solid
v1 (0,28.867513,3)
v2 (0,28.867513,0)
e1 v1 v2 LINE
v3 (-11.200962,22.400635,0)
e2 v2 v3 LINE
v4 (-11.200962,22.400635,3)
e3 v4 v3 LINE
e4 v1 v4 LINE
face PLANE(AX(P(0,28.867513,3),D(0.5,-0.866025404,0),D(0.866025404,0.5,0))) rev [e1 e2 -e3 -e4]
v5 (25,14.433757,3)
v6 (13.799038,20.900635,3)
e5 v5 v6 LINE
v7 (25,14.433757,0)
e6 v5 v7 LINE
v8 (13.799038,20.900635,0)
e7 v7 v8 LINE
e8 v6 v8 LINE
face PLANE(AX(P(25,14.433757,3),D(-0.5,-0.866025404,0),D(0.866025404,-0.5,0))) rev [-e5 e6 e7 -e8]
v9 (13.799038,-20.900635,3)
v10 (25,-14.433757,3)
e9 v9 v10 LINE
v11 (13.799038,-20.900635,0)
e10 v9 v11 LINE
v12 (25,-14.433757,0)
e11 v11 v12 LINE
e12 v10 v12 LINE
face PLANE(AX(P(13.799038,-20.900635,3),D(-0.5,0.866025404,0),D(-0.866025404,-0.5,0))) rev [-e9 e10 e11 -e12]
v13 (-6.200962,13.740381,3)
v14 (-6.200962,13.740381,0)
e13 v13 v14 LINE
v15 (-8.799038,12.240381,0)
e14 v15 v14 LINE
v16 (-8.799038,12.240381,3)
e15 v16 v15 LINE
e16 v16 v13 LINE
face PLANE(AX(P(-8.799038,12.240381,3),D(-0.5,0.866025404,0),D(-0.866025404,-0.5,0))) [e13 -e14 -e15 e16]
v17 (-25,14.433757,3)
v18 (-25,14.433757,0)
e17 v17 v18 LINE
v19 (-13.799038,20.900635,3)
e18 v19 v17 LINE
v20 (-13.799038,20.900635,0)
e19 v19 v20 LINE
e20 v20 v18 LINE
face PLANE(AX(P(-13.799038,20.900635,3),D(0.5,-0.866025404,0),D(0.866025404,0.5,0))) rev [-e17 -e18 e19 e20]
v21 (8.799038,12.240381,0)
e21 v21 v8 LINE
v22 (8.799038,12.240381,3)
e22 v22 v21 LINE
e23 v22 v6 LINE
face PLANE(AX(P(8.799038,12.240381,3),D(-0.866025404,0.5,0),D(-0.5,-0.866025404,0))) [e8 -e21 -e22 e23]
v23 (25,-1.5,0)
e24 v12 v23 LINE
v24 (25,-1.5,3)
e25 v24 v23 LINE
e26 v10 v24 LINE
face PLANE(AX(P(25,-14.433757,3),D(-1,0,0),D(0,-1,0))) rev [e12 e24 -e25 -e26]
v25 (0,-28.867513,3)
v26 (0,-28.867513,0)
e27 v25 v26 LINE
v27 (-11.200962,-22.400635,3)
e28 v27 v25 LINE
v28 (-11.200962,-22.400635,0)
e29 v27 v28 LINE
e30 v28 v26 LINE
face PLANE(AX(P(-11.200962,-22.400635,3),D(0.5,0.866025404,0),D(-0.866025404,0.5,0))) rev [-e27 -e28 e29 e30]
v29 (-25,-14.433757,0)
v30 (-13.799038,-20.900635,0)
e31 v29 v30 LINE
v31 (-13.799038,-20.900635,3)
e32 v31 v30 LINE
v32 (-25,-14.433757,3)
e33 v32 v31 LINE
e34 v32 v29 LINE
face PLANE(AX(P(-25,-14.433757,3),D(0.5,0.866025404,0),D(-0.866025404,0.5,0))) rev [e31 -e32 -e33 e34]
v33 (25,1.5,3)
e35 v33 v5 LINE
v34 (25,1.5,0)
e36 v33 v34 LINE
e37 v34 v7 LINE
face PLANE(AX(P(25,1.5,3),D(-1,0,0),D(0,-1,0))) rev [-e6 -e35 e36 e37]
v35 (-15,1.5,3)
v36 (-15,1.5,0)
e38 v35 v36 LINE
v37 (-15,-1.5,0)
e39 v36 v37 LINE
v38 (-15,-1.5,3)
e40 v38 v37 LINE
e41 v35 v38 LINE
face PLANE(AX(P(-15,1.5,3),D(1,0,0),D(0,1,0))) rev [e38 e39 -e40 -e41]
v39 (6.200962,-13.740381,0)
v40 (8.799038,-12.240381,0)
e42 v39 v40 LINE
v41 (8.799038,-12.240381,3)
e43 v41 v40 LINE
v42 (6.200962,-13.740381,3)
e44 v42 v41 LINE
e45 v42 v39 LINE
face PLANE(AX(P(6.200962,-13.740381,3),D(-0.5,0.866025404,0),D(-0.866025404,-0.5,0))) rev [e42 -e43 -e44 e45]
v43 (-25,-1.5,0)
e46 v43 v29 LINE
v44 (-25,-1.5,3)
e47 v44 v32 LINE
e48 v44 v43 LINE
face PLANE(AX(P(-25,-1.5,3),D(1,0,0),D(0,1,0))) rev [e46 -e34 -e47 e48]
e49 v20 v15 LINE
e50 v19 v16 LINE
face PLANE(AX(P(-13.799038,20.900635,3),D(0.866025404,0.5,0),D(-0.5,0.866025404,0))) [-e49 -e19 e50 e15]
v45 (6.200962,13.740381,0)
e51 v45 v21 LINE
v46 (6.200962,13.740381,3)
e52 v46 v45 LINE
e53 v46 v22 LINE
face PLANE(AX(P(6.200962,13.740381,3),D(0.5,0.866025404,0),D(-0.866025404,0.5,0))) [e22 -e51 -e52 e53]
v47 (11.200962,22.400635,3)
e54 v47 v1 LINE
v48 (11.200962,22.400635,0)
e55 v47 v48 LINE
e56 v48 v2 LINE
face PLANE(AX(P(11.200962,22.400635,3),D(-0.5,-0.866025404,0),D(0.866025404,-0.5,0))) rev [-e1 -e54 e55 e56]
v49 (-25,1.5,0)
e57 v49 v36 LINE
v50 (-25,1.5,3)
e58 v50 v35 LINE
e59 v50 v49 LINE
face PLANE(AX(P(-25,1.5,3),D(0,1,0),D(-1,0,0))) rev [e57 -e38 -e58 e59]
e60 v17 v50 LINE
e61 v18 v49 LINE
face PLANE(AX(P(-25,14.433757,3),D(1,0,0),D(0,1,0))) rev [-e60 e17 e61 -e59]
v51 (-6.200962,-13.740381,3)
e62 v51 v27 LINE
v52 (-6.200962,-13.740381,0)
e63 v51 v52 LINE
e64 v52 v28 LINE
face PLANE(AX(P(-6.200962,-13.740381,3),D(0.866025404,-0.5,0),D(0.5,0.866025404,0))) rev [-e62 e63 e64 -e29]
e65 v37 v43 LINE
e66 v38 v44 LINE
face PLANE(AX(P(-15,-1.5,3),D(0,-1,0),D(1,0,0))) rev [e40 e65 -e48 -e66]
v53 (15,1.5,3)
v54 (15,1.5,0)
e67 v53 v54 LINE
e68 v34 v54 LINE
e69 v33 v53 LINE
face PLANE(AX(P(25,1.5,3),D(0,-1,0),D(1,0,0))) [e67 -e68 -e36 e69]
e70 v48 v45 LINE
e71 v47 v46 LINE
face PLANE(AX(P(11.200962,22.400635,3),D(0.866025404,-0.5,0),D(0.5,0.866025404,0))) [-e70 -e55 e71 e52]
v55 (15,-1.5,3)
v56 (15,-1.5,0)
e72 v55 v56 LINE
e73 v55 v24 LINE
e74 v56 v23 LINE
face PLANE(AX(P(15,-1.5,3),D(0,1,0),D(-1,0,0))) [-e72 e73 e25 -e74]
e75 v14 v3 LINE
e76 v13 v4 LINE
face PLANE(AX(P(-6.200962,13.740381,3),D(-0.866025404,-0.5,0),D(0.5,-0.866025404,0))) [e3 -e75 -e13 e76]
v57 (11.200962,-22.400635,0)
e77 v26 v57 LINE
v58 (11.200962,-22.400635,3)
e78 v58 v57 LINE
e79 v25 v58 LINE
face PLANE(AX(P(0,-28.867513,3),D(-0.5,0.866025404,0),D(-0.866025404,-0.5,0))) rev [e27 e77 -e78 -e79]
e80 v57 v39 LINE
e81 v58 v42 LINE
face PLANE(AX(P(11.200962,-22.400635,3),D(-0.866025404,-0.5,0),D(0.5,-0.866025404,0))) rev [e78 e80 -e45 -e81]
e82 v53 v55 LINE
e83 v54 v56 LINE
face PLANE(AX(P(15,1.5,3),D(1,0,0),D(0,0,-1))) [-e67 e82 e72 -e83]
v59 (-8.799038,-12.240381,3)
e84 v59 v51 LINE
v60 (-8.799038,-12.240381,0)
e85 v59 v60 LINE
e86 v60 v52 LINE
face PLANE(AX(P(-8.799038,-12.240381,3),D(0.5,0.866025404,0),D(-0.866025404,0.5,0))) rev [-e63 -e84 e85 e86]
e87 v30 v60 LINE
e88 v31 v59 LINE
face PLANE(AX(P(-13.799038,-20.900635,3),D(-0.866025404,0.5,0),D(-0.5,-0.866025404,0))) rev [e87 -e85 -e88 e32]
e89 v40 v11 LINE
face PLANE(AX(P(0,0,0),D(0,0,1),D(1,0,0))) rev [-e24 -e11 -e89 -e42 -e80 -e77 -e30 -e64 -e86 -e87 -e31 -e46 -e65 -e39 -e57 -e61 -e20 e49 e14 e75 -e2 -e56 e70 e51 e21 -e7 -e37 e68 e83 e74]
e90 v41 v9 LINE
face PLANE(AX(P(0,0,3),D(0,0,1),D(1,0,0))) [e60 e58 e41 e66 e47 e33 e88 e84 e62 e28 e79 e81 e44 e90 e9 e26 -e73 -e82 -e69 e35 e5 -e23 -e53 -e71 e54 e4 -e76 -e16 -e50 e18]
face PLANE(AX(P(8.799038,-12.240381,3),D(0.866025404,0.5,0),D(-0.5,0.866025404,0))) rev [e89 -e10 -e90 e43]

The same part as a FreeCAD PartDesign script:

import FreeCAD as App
import Part
import Sketcher
from FreeCAD import Vector
Q = App.Units.Quantity

doc = App.newDocument("Part")
params = doc.addObject("Spreadsheet::Sheet", "Params")
for row, (alias, value) in enumerate([
    ("sketch1_width", "10 mm"),
    ("sketch1_height", "3 mm"),
    ("sketch1_length", "10 mm"),
    ("sketch1_length2", "3 mm"),
    ("pad1_length", "3 mm"),
], start=1):
    params.set(f"A{row}", alias)
    params.set(f"B{row}", "=" + value)
    params.setAlias(f"B{row}", alias)

body = doc.addObject("PartDesign::Body", "Body")

# Sketch on XY plane
sketch1 = body.newObject("Sketcher::SketchObject", "Sketch")
sketch1.AttachmentSupport = (doc.getObject("XY_Plane"), [""])
sketch1.MapMode = "FlatFace"
sketch1.addGeometry([
    Part.LineSegment(Vector(-8.8, 12.2, 0), Vector(-13.8, 20.9, 0)),  # 0
    Part.LineSegment(Vector(-13.8, 20.9, 0), Vector(-25, 14.4, 0)),  # 1
    Part.LineSegment(Vector(-25, 14.4, 0), Vector(-25, 1.5, 0)),  # 2
    Part.LineSegment(Vector(-25, 1.5, 0), Vector(-15, 1.5, 0)),  # 3
    Part.LineSegment(Vector(-15, 1.5, 0), Vector(-15, -1.5, 0)),  # 4
    Part.LineSegment(Vector(-15, -1.5, 0), Vector(-25, -1.5, 0)),  # 5
    Part.LineSegment(Vector(-25, -1.5, 0), Vector(-25, -14.4, 0)),  # 6
    Part.LineSegment(Vector(-25, -14.4, 0), Vector(-13.8, -20.9, 0)),  # 7
    Part.LineSegment(Vector(-13.8, -20.9, 0), Vector(-8.8, -12.2, 0)),  # 8
    Part.LineSegment(Vector(-8.8, -12.2, 0), Vector(-6.2, -13.7, 0)),  # 9
    Part.LineSegment(Vector(-6.2, -13.7, 0), Vector(-11.2, -22.4, 0)),  # 10
    Part.LineSegment(Vector(-11.2, -22.4, 0), Vector(0, -28.9, 0)),  # 11
    Part.LineSegment(Vector(0, -28.9, 0), Vector(11.2, -22.4, 0)),  # 12
    Part.LineSegment(Vector(11.2, -22.4, 0), Vector(6.2, -13.7, 0)),  # 13
    Part.LineSegment(Vector(6.2, -13.7, 0), Vector(8.8, -12.2, 0)),  # 14
    Part.LineSegment(Vector(8.8, -12.2, 0), Vector(13.8, -20.9, 0)),  # 15
    Part.LineSegment(Vector(13.8, -20.9, 0), Vector(25, -14.4, 0)),  # 16
    Part.LineSegment(Vector(25, -14.4, 0), Vector(25, -1.5, 0)),  # 17
    Part.LineSegment(Vector(25, -1.5, 0), Vector(15, -1.5, 0)),  # 18
    Part.LineSegment(Vector(15, -1.5, 0), Vector(15, 1.5, 0)),  # 19
    Part.LineSegment(Vector(15, 1.5, 0), Vector(25, 1.5, 0)),  # 20
    Part.LineSegment(Vector(25, 1.5, 0), Vector(25, 14.4, 0)),  # 21
    Part.LineSegment(Vector(25, 14.4, 0), Vector(13.8, 20.9, 0)),  # 22
    Part.LineSegment(Vector(13.8, 20.9, 0), Vector(8.8, 12.2, 0)),  # 23
    Part.LineSegment(Vector(8.8, 12.2, 0), Vector(6.2, 13.7, 0)),  # 24
    Part.LineSegment(Vector(6.2, 13.7, 0), Vector(11.2, 22.4, 0)),  # 25
    Part.LineSegment(Vector(11.2, 22.4, 0), Vector(0, 28.9, 0)),  # 26
    Part.LineSegment(Vector(0, 28.9, 0), Vector(-11.2, 22.4, 0)),  # 27
    Part.LineSegment(Vector(-11.2, 22.4, 0), Vector(-6.2, 13.7, 0)),  # 28
    Part.LineSegment(Vector(-6.2, 13.7, 0), Vector(-8.8, 12.2, 0)),  # 29
], False)
sketch1.addConstraint([
    Sketcher.Constraint("Coincident", 0, 2, 1, 1),
    Sketcher.Constraint("Coincident", 1, 2, 2, 1),
    Sketcher.Constraint("Coincident", 2, 2, 3, 1),
    Sketcher.Constraint("Coincident", 3, 2, 4, 1),
    Sketcher.Constraint("Coincident", 4, 2, 5, 1),
    Sketcher.Constraint("Coincident", 5, 2, 6, 1),
    Sketcher.Constraint("Coincident", 6, 2, 7, 1),
    Sketcher.Constraint("Coincident", 7, 2, 8, 1),
    Sketcher.Constraint("Coincident", 8, 2, 9, 1),
    Sketcher.Constraint("Coincident", 9, 2, 10, 1),
    Sketcher.Constraint("Coincident", 10, 2, 11, 1),
    Sketcher.Constraint("Coincident", 11, 2, 12, 1),
    Sketcher.Constraint("Coincident", 12, 2, 13, 1),
    Sketcher.Constraint("Coincident", 13, 2, 14, 1),
    Sketcher.Constraint("Coincident", 14, 2, 15, 1),
    Sketcher.Constraint("Coincident", 15, 2, 16, 1),
    Sketcher.Constraint("Coincident", 16, 2, 17, 1),
    Sketcher.Constraint("Coincident", 17, 2, 18, 1),
    Sketcher.Constraint("Coincident", 18, 2, 19, 1),
    Sketcher.Constraint("Coincident", 19, 2, 20, 1),
    Sketcher.Constraint("Coincident", 20, 2, 21, 1),
    Sketcher.Constraint("Coincident", 21, 2, 22, 1),
    Sketcher.Constraint("Coincident", 22, 2, 23, 1),
    Sketcher.Constraint("Coincident", 23, 2, 24, 1),
    Sketcher.Constraint("Coincident", 24, 2, 25, 1),
    Sketcher.Constraint("Coincident", 25, 2, 26, 1),
    Sketcher.Constraint("Coincident", 26, 2, 27, 1),
    Sketcher.Constraint("Coincident", 27, 2, 28, 1),
    Sketcher.Constraint("Coincident", 28, 2, 29, 1),
    Sketcher.Constraint("Coincident", 29, 2, 0, 1),
    Sketcher.Constraint("Vertical", 2),
    Sketcher.Constraint("Horizontal", 3),
    Sketcher.Constraint("Vertical", 4),
    Sketcher.Constraint("Horizontal", 5),
    Sketcher.Constraint("Vertical", 6),
    Sketcher.Constraint("Vertical", 17),
    Sketcher.Constraint("Horizontal", 18),
    Sketcher.Constraint("Vertical", 19),
    Sketcher.Constraint("Horizontal", 20),
    Sketcher.Constraint("Vertical", 21),
    Sketcher.Constraint("Symmetric", 0, 2, 15, 2, -1, 1),
    Sketcher.Constraint("Symmetric", 1, 2, 16, 2, -1, 1),
    Sketcher.Constraint("Symmetric", 3, 2, 18, 2, -1, 1),
    Sketcher.Constraint("Symmetric", 5, 2, 20, 2, -1, 1),
    Sketcher.Constraint("Symmetric", 7, 2, 22, 2, -1, 1),
    Sketcher.Constraint("Symmetric", 8, 2, 23, 2, -1, 1),
    Sketcher.Constraint("Symmetric", 9, 2, 24, 2, -1, 1),
    Sketcher.Constraint("Symmetric", 10, 2, 25, 2, -1, 1),
    Sketcher.Constraint("Symmetric", 11, 2, 26, 2, -1, 1),
    Sketcher.Constraint("Symmetric", 12, 2, 27, 2, -1, 1),
    Sketcher.Constraint("Symmetric", 13, 2, 28, 2, -1, 1),
    Sketcher.Constraint("Symmetric", 14, 2, 29, 2, -1, 1),
    Sketcher.Constraint("Symmetric", 10, 2, 12, 2, -2),
    Sketcher.Constraint("Symmetric", 9, 2, 13, 2, -2),
    Sketcher.Constraint("Symmetric", 8, 2, 14, 2, -2),
    Sketcher.Constraint("Symmetric", 7, 2, 15, 2, -2),
    Sketcher.Constraint("Symmetric", 6, 2, 16, 2, -2),
    Sketcher.Constraint("PointOnObject", 11, 2, -2),
    Sketcher.Constraint("Perpendicular", 0, 1),
    Sketcher.Constraint("Perpendicular", 8, 9),
    Sketcher.Constraint("Perpendicular", 9, 10),
    Sketcher.Constraint("Perpendicular", 10, 11),
    Sketcher.Constraint("Parallel", 11, 22),
    Sketcher.Constraint("Horizontal", 5, 2, 17, 2),
    Sketcher.Constraint("Equal", 8, 10),
    Sketcher.Constraint("Equal", 7, 11),
    Sketcher.Constraint("DistanceX", 3, 1, 3, 2, 10.0),
    Sketcher.Constraint("DistanceY", 4, 2, 4, 1, 3.0),
    Sketcher.Constraint("Angle", 0, Q("120 deg")),
    Sketcher.Constraint("Distance", 0, 10.0),
    Sketcher.Constraint("Distance", 9, 3.0),
    Sketcher.Constraint("DistanceX", 1, 2, -1, 1, 25.0),
    Sketcher.Constraint("DistanceY", 2, 2, 2, 1, 12.933757),
])
sketch1.setExpression("Constraints[66]", "Params.sketch1_width")
sketch1.setExpression("Constraints[67]", "Params.sketch1_height")
sketch1.setExpression("Constraints[69]", "Params.sketch1_length")
sketch1.setExpression("Constraints[70]", "Params.sketch1_length2")
pad1 = body.newObject("PartDesign::Pad", "Pad")
pad1.Profile = sketch1
pad1.setExpression("Length", "Params.pad1_length")

doc.recompute()
